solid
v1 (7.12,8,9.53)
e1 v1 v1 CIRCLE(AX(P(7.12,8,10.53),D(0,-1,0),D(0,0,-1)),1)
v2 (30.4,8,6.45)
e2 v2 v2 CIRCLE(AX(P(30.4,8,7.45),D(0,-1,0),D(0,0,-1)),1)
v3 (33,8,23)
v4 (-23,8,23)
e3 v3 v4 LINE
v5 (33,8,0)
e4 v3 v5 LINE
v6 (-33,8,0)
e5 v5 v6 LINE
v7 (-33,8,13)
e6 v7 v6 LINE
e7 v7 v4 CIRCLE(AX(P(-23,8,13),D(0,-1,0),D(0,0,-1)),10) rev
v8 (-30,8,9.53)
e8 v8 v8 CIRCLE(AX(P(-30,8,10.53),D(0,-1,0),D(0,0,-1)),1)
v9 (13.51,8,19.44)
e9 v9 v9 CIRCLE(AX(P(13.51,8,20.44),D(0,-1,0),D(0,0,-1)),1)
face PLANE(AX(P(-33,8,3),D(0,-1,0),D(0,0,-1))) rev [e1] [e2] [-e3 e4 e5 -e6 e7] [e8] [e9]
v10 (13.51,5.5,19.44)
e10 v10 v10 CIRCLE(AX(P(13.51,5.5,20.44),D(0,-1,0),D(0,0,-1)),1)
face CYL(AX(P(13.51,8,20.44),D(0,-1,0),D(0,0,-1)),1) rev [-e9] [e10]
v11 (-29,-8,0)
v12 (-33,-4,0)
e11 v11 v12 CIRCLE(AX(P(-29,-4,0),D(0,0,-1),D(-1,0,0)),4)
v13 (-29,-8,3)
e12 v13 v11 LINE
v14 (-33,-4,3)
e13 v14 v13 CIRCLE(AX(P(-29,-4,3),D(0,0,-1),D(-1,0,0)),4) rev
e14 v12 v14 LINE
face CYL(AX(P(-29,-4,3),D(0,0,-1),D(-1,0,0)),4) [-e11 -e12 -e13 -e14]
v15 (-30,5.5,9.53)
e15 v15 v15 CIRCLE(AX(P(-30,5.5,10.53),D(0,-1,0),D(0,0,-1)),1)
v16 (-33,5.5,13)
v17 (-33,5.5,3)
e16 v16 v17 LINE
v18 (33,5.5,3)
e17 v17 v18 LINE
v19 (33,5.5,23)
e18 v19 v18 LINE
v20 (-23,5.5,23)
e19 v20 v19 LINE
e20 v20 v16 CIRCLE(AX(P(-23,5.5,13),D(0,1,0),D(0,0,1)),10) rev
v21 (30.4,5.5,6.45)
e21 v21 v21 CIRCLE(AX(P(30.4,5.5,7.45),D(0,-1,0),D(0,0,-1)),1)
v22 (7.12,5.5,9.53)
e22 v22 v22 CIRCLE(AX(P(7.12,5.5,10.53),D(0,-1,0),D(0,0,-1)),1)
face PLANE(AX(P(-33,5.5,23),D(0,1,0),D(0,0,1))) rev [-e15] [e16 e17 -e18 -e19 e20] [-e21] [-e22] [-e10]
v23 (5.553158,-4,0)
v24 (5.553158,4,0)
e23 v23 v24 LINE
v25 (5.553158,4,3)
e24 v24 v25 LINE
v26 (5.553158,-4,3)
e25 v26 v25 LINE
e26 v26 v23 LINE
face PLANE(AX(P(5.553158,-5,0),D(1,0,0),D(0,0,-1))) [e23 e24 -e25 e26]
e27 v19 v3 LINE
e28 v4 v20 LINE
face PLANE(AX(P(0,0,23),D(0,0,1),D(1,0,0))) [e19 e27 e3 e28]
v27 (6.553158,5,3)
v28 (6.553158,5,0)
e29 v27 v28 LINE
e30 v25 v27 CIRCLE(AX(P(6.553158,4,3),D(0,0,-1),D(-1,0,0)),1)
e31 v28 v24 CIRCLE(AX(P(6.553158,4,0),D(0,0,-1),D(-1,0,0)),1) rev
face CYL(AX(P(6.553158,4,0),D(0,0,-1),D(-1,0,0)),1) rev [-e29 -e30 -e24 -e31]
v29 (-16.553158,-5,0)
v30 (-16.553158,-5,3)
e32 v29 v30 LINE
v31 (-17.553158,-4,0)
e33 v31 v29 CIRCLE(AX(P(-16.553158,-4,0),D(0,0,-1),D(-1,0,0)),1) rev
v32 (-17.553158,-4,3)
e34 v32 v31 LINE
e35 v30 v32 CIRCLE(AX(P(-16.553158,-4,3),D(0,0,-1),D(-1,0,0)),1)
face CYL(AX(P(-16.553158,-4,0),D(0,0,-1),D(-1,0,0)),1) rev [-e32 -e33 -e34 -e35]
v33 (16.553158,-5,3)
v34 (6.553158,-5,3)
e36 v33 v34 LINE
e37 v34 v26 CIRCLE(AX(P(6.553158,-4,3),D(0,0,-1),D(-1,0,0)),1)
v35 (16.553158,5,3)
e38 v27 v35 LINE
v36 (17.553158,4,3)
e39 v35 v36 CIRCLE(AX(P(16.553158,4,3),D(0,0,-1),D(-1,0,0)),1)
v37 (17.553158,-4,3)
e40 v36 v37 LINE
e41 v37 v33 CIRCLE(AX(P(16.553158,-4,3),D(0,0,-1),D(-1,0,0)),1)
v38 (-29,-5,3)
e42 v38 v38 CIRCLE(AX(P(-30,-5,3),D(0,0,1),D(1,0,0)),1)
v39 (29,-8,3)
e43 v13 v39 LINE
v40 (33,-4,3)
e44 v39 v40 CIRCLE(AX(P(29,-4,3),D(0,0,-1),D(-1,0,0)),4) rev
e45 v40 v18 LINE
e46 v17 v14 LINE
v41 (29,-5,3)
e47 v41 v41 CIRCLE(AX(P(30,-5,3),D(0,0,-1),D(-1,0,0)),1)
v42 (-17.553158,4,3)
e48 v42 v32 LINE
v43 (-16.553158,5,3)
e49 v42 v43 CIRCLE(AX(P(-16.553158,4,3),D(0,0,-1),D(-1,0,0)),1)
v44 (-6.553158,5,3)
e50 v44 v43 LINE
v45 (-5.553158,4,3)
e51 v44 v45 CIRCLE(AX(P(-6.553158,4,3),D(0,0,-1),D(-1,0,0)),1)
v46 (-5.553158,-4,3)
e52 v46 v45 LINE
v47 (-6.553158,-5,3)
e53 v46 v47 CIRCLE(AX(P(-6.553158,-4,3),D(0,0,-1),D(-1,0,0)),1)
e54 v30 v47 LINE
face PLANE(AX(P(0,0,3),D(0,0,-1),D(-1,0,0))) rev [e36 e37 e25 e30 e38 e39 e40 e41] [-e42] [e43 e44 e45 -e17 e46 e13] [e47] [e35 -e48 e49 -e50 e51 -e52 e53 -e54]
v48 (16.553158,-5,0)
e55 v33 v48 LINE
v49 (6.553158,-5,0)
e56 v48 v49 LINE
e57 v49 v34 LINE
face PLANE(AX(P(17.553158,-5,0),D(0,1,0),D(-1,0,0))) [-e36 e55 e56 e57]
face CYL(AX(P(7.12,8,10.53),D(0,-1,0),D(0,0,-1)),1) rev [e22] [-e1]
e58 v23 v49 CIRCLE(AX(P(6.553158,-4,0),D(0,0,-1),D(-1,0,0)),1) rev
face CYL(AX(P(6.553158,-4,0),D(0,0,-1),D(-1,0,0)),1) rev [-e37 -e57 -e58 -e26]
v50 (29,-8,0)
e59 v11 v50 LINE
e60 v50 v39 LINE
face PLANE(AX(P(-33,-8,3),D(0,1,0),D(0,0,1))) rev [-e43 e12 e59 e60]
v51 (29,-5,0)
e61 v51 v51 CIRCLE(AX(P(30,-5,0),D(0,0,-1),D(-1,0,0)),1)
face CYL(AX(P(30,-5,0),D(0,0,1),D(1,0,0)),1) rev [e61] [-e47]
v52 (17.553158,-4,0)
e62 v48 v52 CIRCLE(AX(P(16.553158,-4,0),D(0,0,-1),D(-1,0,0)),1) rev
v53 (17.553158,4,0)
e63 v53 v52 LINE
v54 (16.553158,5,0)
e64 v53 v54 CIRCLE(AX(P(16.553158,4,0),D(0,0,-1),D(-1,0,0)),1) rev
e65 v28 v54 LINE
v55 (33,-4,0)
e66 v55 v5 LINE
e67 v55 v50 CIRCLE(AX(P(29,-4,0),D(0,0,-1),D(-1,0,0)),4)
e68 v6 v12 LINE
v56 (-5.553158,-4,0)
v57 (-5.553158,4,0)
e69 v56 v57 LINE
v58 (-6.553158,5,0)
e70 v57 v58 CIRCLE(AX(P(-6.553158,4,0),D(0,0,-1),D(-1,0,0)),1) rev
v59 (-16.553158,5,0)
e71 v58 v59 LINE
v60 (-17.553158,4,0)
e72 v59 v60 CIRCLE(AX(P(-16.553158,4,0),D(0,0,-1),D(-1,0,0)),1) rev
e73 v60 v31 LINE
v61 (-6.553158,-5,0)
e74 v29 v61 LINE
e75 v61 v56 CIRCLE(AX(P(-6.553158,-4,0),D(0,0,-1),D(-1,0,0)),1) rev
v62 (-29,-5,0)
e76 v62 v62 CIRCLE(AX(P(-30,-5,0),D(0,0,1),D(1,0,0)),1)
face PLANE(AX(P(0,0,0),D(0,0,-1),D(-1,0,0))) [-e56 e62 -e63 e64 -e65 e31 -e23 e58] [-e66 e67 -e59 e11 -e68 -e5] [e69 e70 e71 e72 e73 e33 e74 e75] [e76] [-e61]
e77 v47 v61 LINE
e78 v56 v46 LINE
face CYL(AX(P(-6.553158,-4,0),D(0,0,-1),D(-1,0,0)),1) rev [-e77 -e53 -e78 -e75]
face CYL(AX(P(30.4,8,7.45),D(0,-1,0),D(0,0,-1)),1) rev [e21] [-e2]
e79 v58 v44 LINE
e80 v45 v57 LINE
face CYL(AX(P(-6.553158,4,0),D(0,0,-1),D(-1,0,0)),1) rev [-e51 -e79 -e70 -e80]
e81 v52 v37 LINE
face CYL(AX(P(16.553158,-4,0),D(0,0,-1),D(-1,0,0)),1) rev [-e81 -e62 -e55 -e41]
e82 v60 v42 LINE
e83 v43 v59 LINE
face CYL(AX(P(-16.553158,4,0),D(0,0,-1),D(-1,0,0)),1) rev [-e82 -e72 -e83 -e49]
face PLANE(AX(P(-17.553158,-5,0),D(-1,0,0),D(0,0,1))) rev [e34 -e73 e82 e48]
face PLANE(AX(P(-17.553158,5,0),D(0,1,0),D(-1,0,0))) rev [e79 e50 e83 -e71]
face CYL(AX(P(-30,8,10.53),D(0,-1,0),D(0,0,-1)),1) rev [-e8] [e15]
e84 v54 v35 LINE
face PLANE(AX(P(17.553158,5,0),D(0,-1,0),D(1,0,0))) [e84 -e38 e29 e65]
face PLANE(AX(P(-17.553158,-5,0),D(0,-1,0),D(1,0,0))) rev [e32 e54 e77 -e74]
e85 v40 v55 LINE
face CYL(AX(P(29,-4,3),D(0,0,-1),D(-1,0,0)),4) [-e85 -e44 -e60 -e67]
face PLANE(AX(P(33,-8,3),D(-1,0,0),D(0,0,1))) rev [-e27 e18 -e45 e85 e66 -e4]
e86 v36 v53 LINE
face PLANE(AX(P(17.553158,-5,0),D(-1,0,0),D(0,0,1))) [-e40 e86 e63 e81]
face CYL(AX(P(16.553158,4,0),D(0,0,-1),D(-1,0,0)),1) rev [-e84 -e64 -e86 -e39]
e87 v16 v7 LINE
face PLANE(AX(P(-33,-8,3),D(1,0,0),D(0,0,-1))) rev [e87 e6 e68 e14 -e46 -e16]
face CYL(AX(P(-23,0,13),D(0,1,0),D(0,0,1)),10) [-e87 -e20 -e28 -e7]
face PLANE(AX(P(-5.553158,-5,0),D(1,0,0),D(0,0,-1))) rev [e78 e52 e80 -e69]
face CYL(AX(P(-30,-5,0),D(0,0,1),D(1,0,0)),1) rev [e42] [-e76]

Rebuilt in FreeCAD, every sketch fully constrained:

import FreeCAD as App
import Part
import Sketcher

V = App.Vector


def edges_at(feature, points):
    """Names of the edges that pass closest to the given points."""
    edges = feature.Shape.Edges
    near = lambda p: min(range(len(edges)), key=lambda i: edges[i].distToShape(Part.Vertex(*p))[0])
    return sorted({f"Edge{near(p) + 1}" for p in points})

doc = App.newDocument("Part")
body = doc.addObject("PartDesign::Body", "Body")

# Sketch on XY plane
sketch1 = body.newObject("Sketcher::SketchObject", "Sketch")
sketch1.AttachmentSupport = (doc.getObject("XY_Plane"), [""])
sketch1.MapMode = "FlatFace"
sketch1.addGeometry([
    Part.LineSegment(V(-33, 8, 0), V(-33, -8, 0)),
    Part.LineSegment(V(-33, -8, 0), V(33, -8, 0)),
    Part.LineSegment(V(33, -8, 0), V(33, 8, 0)),
    Part.LineSegment(V(33, 8, 0), V(-33, 8, 0)),
], False)
sketch1.addConstraint([
    Sketcher.Constraint("Coincident", 0, 2, 1, 1),
    Sketcher.Constraint("Coincident", 1, 2, 2, 1),
    Sketcher.Constraint("Coincident", 2, 2, 3, 1),
    Sketcher.Constraint("Coincident", 3, 2, 0, 1),
    Sketcher.Constraint("Vertical", 0),
    Sketcher.Constraint("Horizontal", 1),
    Sketcher.Constraint("Vertical", 2),
    Sketcher.Constraint("Horizontal", 3),
    Sketcher.Constraint("Symmetric", 0, 2, 2, 2, -1, 1),
    Sketcher.Constraint("DistanceX", 1, 1, 1, 2, 66.0),
    Sketcher.Constraint("DistanceY", 0, 2, 0, 1, 16.0),
])
pad1 = body.newObject("PartDesign::Pad", "Pad")
pad1.Profile = sketch1
pad1.Length = 3

# Sketch on XY plane
sketch2 = body.newObject("Sketcher::SketchObject", "Sketch001")
sketch2.AttachmentSupport = (doc.getObject("XY_Plane"), [""])
sketch2.MapMode = "FlatFace"
sketch2.AttachmentOffset = App.Placement(V(0, 0, 3), App.Rotation())
sketch2.addGeometry([
    Part.LineSegment(V(-33, 8, 0), V(-33, 5.5, 0)),
    Part.LineSegment(V(-33, 5.5, 0), V(33, 5.5, 0)),
    Part.LineSegment(V(33, 5.5, 0), V(33, 8, 0)),
    Part.LineSegment(V(33, 8, 0), V(-33, 8, 0)),
], False)
sketch2.addConstraint([
    Sketcher.Constraint("Coincident", 0, 2, 1, 1),
    Sketcher.Constraint("Coincident", 1, 2, 2, 1),
    Sketcher.Constraint("Coincident", 2, 2, 3, 1),
    Sketcher.Constraint("Coincident", 3, 2, 0, 1),
    Sketcher.Constraint("Vertical", 0),
    Sketcher.Constraint("Horizontal", 1),
    Sketcher.Constraint("Vertical", 2),
    Sketcher.Constraint("Horizontal", 3),
    Sketcher.Constraint("DistanceX", 1, 1, 1, 2, 66.0),
    Sketcher.Constraint("DistanceY", 0, 2, 0, 1, 2.5),
    Sketcher.Constraint("DistanceX", 0, 2, -1, 1, 33.0),
    Sketcher.Constraint("DistanceY", -1, 1, 2, 2, 8.0),
])
pad2 = body.newObject("PartDesign::Pad", "Pad001")
pad2.Profile = sketch2
pad2.Length = 20

# Sketch on XZ plane
sketch3 = body.newObject("Sketcher::SketchObject", "Sketch002")
sketch3.AttachmentSupport = (doc.getObject("XZ_Plane"), [""])
sketch3.MapMode = "FlatFace"
sketch3.AttachmentOffset = App.Placement(V(0, 0, -5.5), App.Rotation())
sketch3.addGeometry([
    Part.Circle(V(-30, 10.5, 0), V(0, 0, 1), 1),
    Part.Circle(V(7.1, 10.5, 0), V(0, 0, 1), 1),
    Part.Circle(V(30.4, 7.5, 0), V(0, 0, 1), 1),
    Part.Circle(V(13.5, 20.4, 0), V(0, 0, 1), 1),
], False)
sketch3.addConstraint([
    Sketcher.Constraint("Equal", 0, 1),
    Sketcher.Constraint("Equal", 1, 2),
    Sketcher.Constraint("Equal", 2, 3),
    Sketcher.Constraint("Horizontal", 0, 3, 1, 3),
    Sketcher.Constraint("Diameter", 0, 2.0),
    Sketcher.Constraint("DistanceX", 0, 3, -1, 1, 30.0),
    Sketcher.Constraint("DistanceX", -1, 1, 2, 3, 30.4),
    Sketcher.Constraint("DistanceY", -1, 1, 0, 3, 10.53),
    Sketcher.Constraint("DistanceX", -1, 1, 1, 3, 7.12),
    Sketcher.Constraint("DistanceY", -1, 1, 2, 3, 7.45),
    Sketcher.Constraint("DistanceX", -1, 1, 3, 3, 13.51),
    Sketcher.Constraint("DistanceY", -1, 1, 3, 3, 20.44),
])
pocket1 = body.newObject("PartDesign::Pocket", "Pocket")
pocket1.Profile = sketch3
pocket1.Type = "ThroughAll"

# Sketch on XY plane
sketch4 = body.newObject("Sketcher::SketchObject", "Sketch003")
sketch4.AttachmentSupport = (doc.getObject("XY_Plane"), [""])
sketch4.MapMode = "FlatFace"
sketch4.AttachmentOffset = App.Placement(V(0, 0, 3), App.Rotation())
sketch4.addGeometry([
    Part.Circle(V(-30, -5, 0), V(0, 0, 1), 1),  # 0
    Part.LineSegment(V(-17.6, 5, 0), V(-17.6, -5, 0)),  # 1
    Part.LineSegment(V(-17.6, -5, 0), V(-5.6, -5, 0)),  # 2
    Part.LineSegment(V(-5.6, -5, 0), V(-5.6, 5, 0)),  # 3
    Part.LineSegment(V(-5.6, 5, 0), V(-17.6, 5, 0)),  # 4
], False)
sketch4.addConstraint([
    Sketcher.Constraint("Coincident", 1, 2, 2, 1),
    Sketcher.Constraint("Coincident", 2, 2, 3, 1),
    Sketcher.Constraint("Coincident", 3, 2, 4, 1),
    Sketcher.Constraint("Coincident", 4, 2, 1, 1),
    Sketcher.Constraint("Vertical", 1),
    Sketcher.Constraint("Horizontal", 2),
    Sketcher.Constraint("Vertical", 3),
    Sketcher.Constraint("Horizontal", 4),
    Sketcher.Constraint("Horizontal", 0, 3, 1, 2),
    Sketcher.Constraint("Diameter", 0, 2.0),
    Sketcher.Constraint("DistanceX", 2, 1, 2, 2, 12.0),
    Sketcher.Constraint("DistanceY", 1, 2, 1, 1, 10.0),
    Sketcher.Constraint("DistanceX", 0, 3, -1, 1, 30.0),
    Sketcher.Constraint("DistanceY", 0, 3, -1, 1, 5.0),
    Sketcher.Constraint("DistanceX", 1, 2, -1, 1, 17.553158),
])
pocket2 = body.newObject("PartDesign::Pocket", "Pocket001")
pocket2.Profile = sketch4
pocket2.Type = "ThroughAll"
doc.recompute()

fillet = body.newObject("PartDesign::Fillet", "Fillet")
fillet.Base = (pocket2, edges_at(pocket2, [(-33, 6.75, 23)]))
fillet.Radius = 10
doc.recompute()

fillet2 = body.newObject("PartDesign::Fillet", "Fillet001")
fillet2.Base = (fillet, edges_at(fillet, [(33, -8, 1.5), (-33, -8, 1.5)]))
fillet2.Radius = 4
doc.recompute()

mirrored = body.newObject("PartDesign::Mirrored", "Mirrored")
mirrored.Originals = [pocket2]
mirrored.MirrorPlane = (doc.getObject("YZ_Plane"), [""])
body.Tip = mirrored
doc.recompute()

fillet3 = body.newObject("PartDesign::Fillet", "Fillet002")
fillet3.Base = (mirrored, edges_at(mirrored, [
    (-5.553, 5, 1.5),
    (-5.553, -5, 1.5),
    (-17.553, -5, 1.5),
    (-17.553, 5, 1.5),
    (5.553, -5, 1.5),
    (5.553, 5, 1.5),
    (17.553, 5, 1.5),
    (17.553, -5, 1.5),
]))
fillet3.Radius = 1

doc.recompute()
